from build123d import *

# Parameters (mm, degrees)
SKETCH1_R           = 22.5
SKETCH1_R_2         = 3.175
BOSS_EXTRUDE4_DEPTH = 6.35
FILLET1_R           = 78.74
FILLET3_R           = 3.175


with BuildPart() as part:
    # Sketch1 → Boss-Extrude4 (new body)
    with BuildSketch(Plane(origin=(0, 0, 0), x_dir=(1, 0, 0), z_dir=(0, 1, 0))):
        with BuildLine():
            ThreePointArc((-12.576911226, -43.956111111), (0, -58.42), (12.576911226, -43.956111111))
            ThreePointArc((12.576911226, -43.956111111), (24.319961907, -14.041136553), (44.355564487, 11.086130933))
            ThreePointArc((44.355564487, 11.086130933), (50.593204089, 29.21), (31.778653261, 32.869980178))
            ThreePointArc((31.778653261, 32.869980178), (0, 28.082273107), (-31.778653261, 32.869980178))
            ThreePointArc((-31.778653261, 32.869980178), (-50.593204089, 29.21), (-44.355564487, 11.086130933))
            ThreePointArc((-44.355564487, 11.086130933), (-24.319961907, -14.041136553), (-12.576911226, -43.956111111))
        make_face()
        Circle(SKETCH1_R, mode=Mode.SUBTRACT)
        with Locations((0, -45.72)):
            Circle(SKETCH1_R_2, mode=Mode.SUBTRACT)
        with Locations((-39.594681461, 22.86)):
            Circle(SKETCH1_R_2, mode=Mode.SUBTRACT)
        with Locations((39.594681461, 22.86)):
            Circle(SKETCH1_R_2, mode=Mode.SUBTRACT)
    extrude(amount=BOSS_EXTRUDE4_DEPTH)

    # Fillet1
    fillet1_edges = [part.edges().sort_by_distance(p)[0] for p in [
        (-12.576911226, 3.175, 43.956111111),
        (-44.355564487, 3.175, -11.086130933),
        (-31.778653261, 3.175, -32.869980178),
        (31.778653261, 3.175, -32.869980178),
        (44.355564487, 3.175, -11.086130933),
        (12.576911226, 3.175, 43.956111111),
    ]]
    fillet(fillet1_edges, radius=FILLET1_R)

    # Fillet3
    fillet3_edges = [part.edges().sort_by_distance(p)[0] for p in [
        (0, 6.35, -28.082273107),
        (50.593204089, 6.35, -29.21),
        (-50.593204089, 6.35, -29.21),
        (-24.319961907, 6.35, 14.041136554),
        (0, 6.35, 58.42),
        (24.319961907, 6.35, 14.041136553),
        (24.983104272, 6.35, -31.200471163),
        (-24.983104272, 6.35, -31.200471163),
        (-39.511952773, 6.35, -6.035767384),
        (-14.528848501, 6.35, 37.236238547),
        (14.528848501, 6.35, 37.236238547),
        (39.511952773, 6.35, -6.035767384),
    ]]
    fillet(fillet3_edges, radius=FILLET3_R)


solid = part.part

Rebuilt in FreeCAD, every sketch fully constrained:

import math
import FreeCAD as App
import Part
import Sketcher

V = App.Vector
Q = App.Units.Quantity


def edges_at(feature, points):
    """Names of the edges that pass closest to the given points."""
    edges = feature.Shape.Edges
    near = lambda p: min(range(len(edges)), key=lambda i: edges[i].distToShape(Part.Vertex(*p))[0])
    return sorted({f"Edge{near(p) + 1}" for p in points})

doc = App.newDocument("Part")
params = doc.addObject("Spreadsheet::Sheet", "Params")
for row, (alias, value) in enumerate([
    ("sketch1_radius", "0.5 in"),
    ("sketch1_diameter", "0.25 in"),
    ("pad1_length", "0.25 in"),
    ("fillet_radius", "3.1 in"),
    ("fillet2_radius", "0.125 in"),
], start=1):
    params.set(f"A{row}", alias)
    params.set(f"B{row}", "=" + value)
    params.setAlias(f"B{row}", alias)

body = doc.addObject("PartDesign::Body", "Body")

# Sketch on XZ plane
sketch1 = doc.addObject("Sketcher::SketchObject", "Sketch")
body.addObject(sketch1)
sketch1.AttachmentSupport = (doc.XZ_Plane, [""])
sketch1.MapMode = "FlatFace"
sketch1.addGeometry([
    Part.ArcOfCircle(Part.Circle(V(0, 45.72, 0), V(0, 0, 1), 12.7), math.radians(-7.983556), math.radians(187.983556)),  # 0
    Part.ArcOfCircle(Part.Circle(V(117.729532, 67.971177, 0), V(0, 0, 1), 107.860081), math.radians(-167.135262), math.radians(-132.864738)),  # 1
    Part.ArcOfCircle(Part.Circle(V(39.594681, -22.86, 0), V(0, 0, 1), 12.7), math.radians(-127.983556), math.radians(67.983556)),  # 2
    Part.ArcOfCircle(Part.Circle(V(0, -135.942354, 0), V(0, 0, 1), 107.860081), math.radians(72.864738), math.radians(107.135262)),  # 3
    Part.ArcOfCircle(Part.Circle(V(-39.594681, -22.86, 0), V(0, 0, 1), 12.7), math.radians(112.016444), math.radians(307.983556)),  # 4
    Part.ArcOfCircle(Part.Circle(V(-117.729532, 67.971177, 0), V(0, 0, 1), 107.860081), math.radians(-47.135262), math.radians(-12.864738)),  # 5
    Part.Circle(V(0, 45.72, 0), V(0, 0, 1), 3.175),  # 6
    Part.Circle(V(0, 0, 0), V(0, 0, 1), 22.5),  # 7
    Part.Circle(V(-39.594681, -22.86, 0), V(0, 0, 1), 3.175),  # 8
    Part.Circle(V(39.594681, -22.86, 0), V(0, 0, 1), 3.175),  # 9
], False)
sketch1.addConstraint([
    Sketcher.Constraint("Coincident", 0, 1, 1, 1),
    Sketcher.Constraint("Coincident", 1, 2, 2, 2),
    Sketcher.Constraint("Coincident", 2, 1, 3, 1),
    Sketcher.Constraint("Coincident", 3, 2, 4, 2),
    Sketcher.Constraint("Coincident", 4, 1, 5, 1),
    Sketcher.Constraint("Coincident", 5, 2, 0, 2),
    Sketcher.Constraint("Coincident", 7, 3, -1, 1),
    Sketcher.Constraint("Coincident", 6, 3, 0, 3),
    Sketcher.Constraint("Coincident", 8, 3, 4, 3),
    Sketcher.Constraint("Coincident", 9, 3, 2, 3),
    Sketcher.Constraint("Equal", 0, 2),
    Sketcher.Constraint("Equal", 1, 3),
    Sketcher.Constraint("Equal", 2, 4),
    Sketcher.Constraint("Equal", 3, 5),
    Sketcher.Constraint("Equal", 6, 8),
    Sketcher.Constraint("Equal", 8, 9),
    Sketcher.Constraint("Symmetric", 2, 3, 4, 3, -2),
    Sketcher.Constraint("Symmetric", 1, 3, 5, 3, -2),
    Sketcher.Constraint("PointOnObject", 0, 3, -2),
    Sketcher.Constraint("PointOnObject", 3, 3, -2),
    Sketcher.Constraint("Radius", 0, Q("0.5 in")),
    Sketcher.Constraint("Diameter", 6, Q("0.25 in")),
    Sketcher.Constraint("DistanceY", -1, 1, 0, 3, Q("1.8 in")),
    Sketcher.Constraint("DistanceY", 2, 3, -1, 1, Q("0.9 in")),
    Sketcher.Constraint("Diameter", 7, 45.0),
    Sketcher.Constraint("Radius", 1, 107.860081),
    Sketcher.Constraint("DistanceX", -1, 1, 1, 3, 117.729532),
    Sketcher.Constraint("DistanceX", -1, 1, 2, 3, 39.594681),
    Sketcher.Constraint("DistanceX", -1, 1, 0, 1, 12.576911),
    Sketcher.Constraint("DistanceY", 2, 1, -1, 1, 32.86998),
])
sketch1.setExpression("Constraints[20]", "Params.sketch1_radius")
sketch1.setExpression("Constraints[21]", "Params.sketch1_diameter")
pad1 = doc.addObject("PartDesign::Pad", "Pad")
body.addObject(pad1)
pad1.Profile = sketch1
pad1.setExpression("Length", "Params.pad1_length")
pad1.Reversed = True
doc.recompute()

fillet = doc.addObject("PartDesign::Fillet", "Fillet")
body.addObject(fillet)
fillet.Base = (pad1, edges_at(pad1, [
    (-12.577, 3.175, 43.956),
    (-44.356, 3.175, -11.086),
    (-31.779, 3.175, -32.87),
    (31.779, 3.175, -32.87),
    (44.356, 3.175, -11.086),
    (12.577, 3.175, 43.956),
]))
fillet.setExpression("Radius", "Params.fillet_radius")
doc.recompute()

fillet2 = doc.addObject("PartDesign::Fillet", "Fillet001")
body.addObject(fillet2)
fillet2.Base = (fillet, edges_at(fillet, [
    (0, 6.35, -28.082),
    (50.593, 6.35, -29.21),
    (-50.593, 6.35, -29.21),
    (-24.32, 6.35, 14.041),
    (0, 6.35, 58.42),
    (24.32, 6.35, 14.041),
    (24.983, 6.35, -31.2),
    (-24.983, 6.35, -31.2),
    (-39.512, 6.35, -6.036),
    (-14.529, 6.35, 37.236),
    (14.529, 6.35, 37.236),
    (39.512, 6.35, -6.036),
]))
fillet2.setExpression("Radius", "Params.fillet2_radius")

doc.recompute()
